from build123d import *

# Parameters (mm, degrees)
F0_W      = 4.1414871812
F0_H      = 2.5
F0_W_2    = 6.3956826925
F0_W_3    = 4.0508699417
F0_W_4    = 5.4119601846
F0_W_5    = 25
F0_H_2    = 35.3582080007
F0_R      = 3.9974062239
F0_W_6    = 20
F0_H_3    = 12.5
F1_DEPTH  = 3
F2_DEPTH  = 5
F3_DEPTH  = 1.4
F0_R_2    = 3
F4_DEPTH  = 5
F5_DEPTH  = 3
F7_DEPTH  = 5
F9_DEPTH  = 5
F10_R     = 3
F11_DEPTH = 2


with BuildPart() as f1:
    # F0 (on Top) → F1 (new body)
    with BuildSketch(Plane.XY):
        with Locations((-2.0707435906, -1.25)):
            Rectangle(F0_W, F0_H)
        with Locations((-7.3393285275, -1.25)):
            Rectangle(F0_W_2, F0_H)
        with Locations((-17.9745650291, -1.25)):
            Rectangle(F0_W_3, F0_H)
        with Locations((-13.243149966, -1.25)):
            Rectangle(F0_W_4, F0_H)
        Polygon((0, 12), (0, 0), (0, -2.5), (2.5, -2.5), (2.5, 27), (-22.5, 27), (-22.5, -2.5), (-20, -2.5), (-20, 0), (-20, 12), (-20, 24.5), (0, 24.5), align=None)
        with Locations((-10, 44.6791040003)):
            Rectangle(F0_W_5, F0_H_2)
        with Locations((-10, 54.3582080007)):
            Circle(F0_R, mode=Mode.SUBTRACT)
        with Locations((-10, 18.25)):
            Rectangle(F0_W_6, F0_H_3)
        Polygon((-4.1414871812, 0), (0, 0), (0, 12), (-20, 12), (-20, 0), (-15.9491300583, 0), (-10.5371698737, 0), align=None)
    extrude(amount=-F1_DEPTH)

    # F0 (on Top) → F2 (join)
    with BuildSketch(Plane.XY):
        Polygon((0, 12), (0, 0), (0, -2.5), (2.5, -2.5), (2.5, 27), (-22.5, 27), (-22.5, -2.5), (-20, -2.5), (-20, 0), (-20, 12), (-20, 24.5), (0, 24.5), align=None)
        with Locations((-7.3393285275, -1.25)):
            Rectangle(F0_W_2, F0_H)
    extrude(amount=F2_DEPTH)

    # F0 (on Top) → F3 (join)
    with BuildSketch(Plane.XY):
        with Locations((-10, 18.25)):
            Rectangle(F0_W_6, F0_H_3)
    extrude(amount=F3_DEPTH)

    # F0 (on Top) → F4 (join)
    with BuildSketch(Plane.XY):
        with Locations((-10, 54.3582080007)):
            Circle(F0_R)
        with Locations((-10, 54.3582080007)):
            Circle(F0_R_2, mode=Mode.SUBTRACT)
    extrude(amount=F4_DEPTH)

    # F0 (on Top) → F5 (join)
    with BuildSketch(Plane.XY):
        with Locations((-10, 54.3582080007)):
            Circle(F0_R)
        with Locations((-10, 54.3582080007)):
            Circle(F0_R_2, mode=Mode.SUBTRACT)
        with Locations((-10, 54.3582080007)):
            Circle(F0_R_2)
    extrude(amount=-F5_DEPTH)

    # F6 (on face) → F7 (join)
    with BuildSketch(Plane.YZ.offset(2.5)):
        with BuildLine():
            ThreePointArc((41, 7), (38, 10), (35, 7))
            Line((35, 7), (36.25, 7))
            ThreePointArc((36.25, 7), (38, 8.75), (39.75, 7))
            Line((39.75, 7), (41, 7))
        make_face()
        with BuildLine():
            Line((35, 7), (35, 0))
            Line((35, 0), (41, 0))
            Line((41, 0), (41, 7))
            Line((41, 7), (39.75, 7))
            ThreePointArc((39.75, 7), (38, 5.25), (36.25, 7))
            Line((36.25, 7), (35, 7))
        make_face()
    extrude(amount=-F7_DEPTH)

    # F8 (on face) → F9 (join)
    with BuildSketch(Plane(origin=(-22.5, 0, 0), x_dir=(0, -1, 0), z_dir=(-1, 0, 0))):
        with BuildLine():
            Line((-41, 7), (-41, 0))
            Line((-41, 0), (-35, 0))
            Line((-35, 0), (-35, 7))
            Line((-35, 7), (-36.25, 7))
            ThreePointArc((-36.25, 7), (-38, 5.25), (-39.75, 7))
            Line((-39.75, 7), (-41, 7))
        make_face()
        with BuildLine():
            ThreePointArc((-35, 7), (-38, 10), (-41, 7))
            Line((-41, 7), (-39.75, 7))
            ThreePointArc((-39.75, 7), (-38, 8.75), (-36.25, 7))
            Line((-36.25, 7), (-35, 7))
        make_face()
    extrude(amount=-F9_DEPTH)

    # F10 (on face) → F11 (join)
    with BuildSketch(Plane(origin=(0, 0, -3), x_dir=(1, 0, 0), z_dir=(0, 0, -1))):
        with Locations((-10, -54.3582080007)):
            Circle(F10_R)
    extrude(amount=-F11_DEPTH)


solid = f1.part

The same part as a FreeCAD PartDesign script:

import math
import FreeCAD as App
import Part
import Sketcher

V = App.Vector
Q = App.Units.Quantity


def add_polygon(sketch, points):
    """Adds a closed chain of lines whose ends are joined by coincident constraints."""
    first, n = sketch.GeometryCount, len(points)
    for a, b in zip(points, points[1:] + points[:1]):
        sketch.addGeometry(Part.LineSegment(App.Vector(*a, 0), App.Vector(*b, 0)), False)
    for i in range(n):
        sketch.addConstraint(Sketcher.Constraint("Coincident", first + i, 2, first + (i + 1) % n, 1))

doc = App.newDocument("Part")
body = doc.addObject("PartDesign::Body", "Body")
body.AllowCompound = True

# Sketch on XY plane
sketch1 = body.newObject("Sketcher::SketchObject", "Sketch")
sketch1.AttachmentSupport = (doc.getObject("XY_Plane"), [""])
sketch1.MapMode = "FlatFace"
add_polygon(sketch1, [(2.5, -2.5), (2.5, 62.358208), (-22.5, 62.358208), (-22.5, -2.5)])  # lines 0-3
sketch1.addGeometry(Part.Circle(V(-10, 54.358208, 0), V(0, 0, 1), 3.997406), False)  # 4
sketch1.addConstraint([
    Sketcher.Constraint("Vertical", 0),
    Sketcher.Constraint("Horizontal", 1),
    Sketcher.Constraint("Vertical", 2),
    Sketcher.Constraint("Horizontal", 3),
    Sketcher.Constraint("DistanceX", 1, 2, 1, 1, Q("25 mm")),
    Sketcher.Constraint("DistanceX", 4, 3, -1, 1, Q("10 mm")),
    Sketcher.Constraint("DistanceY", 4, 3, 0, 2, Q("8 mm")),
    Sketcher.Constraint("DistanceX", -1, 1, 0, 2, Q("2.5 mm")),
    Sketcher.Constraint("DistanceY", 2, 2, -1, 1, Q("2.5 mm")),
    Sketcher.Constraint("Diameter", 4, Q("7.994812 mm")),
    Sketcher.Constraint("DistanceY", 0, 1, 0, 2, Q("64.858208 mm")),
])
pad1 = body.newObject("PartDesign::Pad", "Pad")
pad1.Profile = sketch1
pad1.Length = 3
pad1.Reversed = True

# Sketch on XY plane
sketch2 = body.newObject("Sketcher::SketchObject", "Sketch001")
sketch2.AttachmentSupport = (doc.getObject("XY_Plane"), [""])
sketch2.MapMode = "FlatFace"
add_polygon(sketch2, [(0, -2.5), (2.5, -2.5), (2.5, 27), (-22.5, 27), (-22.5, -2.5), (-20, -2.5), (-20, 24.5), (0, 24.5)])  # lines 0-7
add_polygon(sketch2, [(-10.53717, 0), (-10.53717, -2.5), (-4.141487, -2.5), (-4.141487, 0)])  # lines 8-11
sketch2.addConstraint([
    Sketcher.Constraint("Horizontal", 0),
    Sketcher.Constraint("Vertical", 1),
    Sketcher.Constraint("Horizontal", 2),
    Sketcher.Constraint("Vertical", 3),
    Sketcher.Constraint("Horizontal", 4),
    Sketcher.Constraint("Vertical", 5),
    Sketcher.Constraint("Horizontal", 6),
    Sketcher.Constraint("Vertical", 7),
    Sketcher.Constraint("Vertical", 8),
    Sketcher.Constraint("Horizontal", 9),
    Sketcher.Constraint("Vertical", 10),
    Sketcher.Constraint("Horizontal", 11),
    Sketcher.Constraint("PointOnObject", 6, 2, -2),
    Sketcher.Constraint("PointOnObject", 10, 2, -1),
    Sketcher.Constraint("Horizontal", 0, 2, 3, 2),
    Sketcher.Constraint("Horizontal", 7, 2, 8, 2),
    Sketcher.Constraint("Equal", 0, 4),
    Sketcher.Constraint("Equal", 4, 8),
    Sketcher.Constraint("DistanceX", 2, 2, 2, 1, Q("25 mm")),
    Sketcher.Constraint("DistanceX", 6, 1, 6, 2, Q("20 mm")),
    Sketcher.Constraint("DistanceY", 5, 1, 5, 2, Q("27 mm")),
    Sketcher.Constraint("DistanceY", 1, 1, 1, 2, Q("29.5 mm")),
    Sketcher.Constraint("DistanceX", 9, 1, 9, 2, Q("6.395683 mm")),
    Sketcher.Constraint("DistanceX", 8, 2, -1, 1, Q("10.53717 mm")),
])
pad2 = body.newObject("PartDesign::Pad", "Pad001")
pad2.Profile = sketch2
pad2.Length = 5

# Sketch on XY plane
sketch3 = body.newObject("Sketcher::SketchObject", "Sketch002")
sketch3.AttachmentSupport = (doc.getObject("XY_Plane"), [""])
sketch3.MapMode = "FlatFace"
add_polygon(sketch3, [(-20, 24.5), (-20, 12), (0, 12), (0, 24.5)])  # lines 0-3
sketch3.addConstraint([
    Sketcher.Constraint("Vertical", 0),
    Sketcher.Constraint("Horizontal", 1),
    Sketcher.Constraint("Vertical", 2),
    Sketcher.Constraint("Horizontal", 3),
    Sketcher.Constraint("PointOnObject", 1, 2, -2),
    Sketcher.Constraint("DistanceX", 1, 1, 1, 2, Q("20 mm")),
    Sketcher.Constraint("DistanceY", 0, 2, 0, 1, Q("12.5 mm")),
    Sketcher.Constraint("DistanceY", -1, 1, 0, 2, Q("12 mm")),
])
pad3 = body.newObject("PartDesign::Pad", "Pad002")
pad3.Profile = sketch3
pad3.Length = 1.4

# Sketch on XY plane
sketch4 = body.newObject("Sketcher::SketchObject", "Sketch003")
sketch4.AttachmentSupport = (doc.getObject("XY_Plane"), [""])
sketch4.MapMode = "FlatFace"
sketch4.addGeometry([
    Part.Circle(V(-10, 54.358208, 0), V(0, 0, 1), 3.997406),
    Part.Circle(V(-10, 54.358208, 0), V(0, 0, 1), 3),
], False)
sketch4.addConstraint([
    Sketcher.Constraint("Coincident", 1, 3, 0, 3),
    Sketcher.Constraint("Diameter", 1, Q("6 mm")),
    Sketcher.Constraint("DistanceX", 0, 3, -1, 1, Q("10 mm")),
    Sketcher.Constraint("Diameter", 0, Q("7.994812 mm")),
    Sketcher.Constraint("DistanceY", -1, 1, 0, 3, Q("54.358208 mm")),
])
pad4 = body.newObject("PartDesign::Pad", "Pad003")
pad4.Profile = sketch4
pad4.Length = 5

# Sketch on XY plane
sketch5 = body.newObject("Sketcher::SketchObject", "Sketch004")
sketch5.AttachmentSupport = (doc.getObject("XY_Plane"), [""])
sketch5.MapMode = "FlatFace"
sketch5.addGeometry(Part.Circle(V(-10, 54.358208, 0), V(0, 0, 1), 3.997406), False)
sketch5.addConstraint([
    Sketcher.Constraint("DistanceX", 0, 3, -1, 1, Q("10 mm")),
    Sketcher.Constraint("Diameter", 0, Q("7.994812 mm")),
    Sketcher.Constraint("DistanceY", -1, 1, 0, 3, Q("54.358208 mm")),
])
pad5 = body.newObject("PartDesign::Pad", "Pad004")
pad5.Profile = sketch5
pad5.Length = 3
pad5.Reversed = True

# Sketch on YZ plane
sketch6 = body.newObject("Sketcher::SketchObject", "Sketch005")
sketch6.AttachmentSupport = (doc.getObject("YZ_Plane"), [""])
sketch6.MapMode = "FlatFace"
sketch6.AttachmentOffset = App.Placement(V(0, 0, 2.5), App.Rotation())
sketch6.addGeometry([
    Part.ArcOfCircle(Part.Circle(V(38, 7, 0), V(0, 0, 1), 3), math.radians(0), math.radians(180)),  # 0
    Part.LineSegment(V(35, 7, 0), V(35, 0, 0)),  # 1
    Part.LineSegment(V(35, 0, 0), V(41, 0, 0)),  # 2
    Part.LineSegment(V(41, 0, 0), V(41, 7, 0)),  # 3
    Part.Circle(V(38, 7, 0), V(0, 0, 1), 1.75),  # 4
], False)
sketch6.addConstraint([
    Sketcher.Constraint("Tangent", 0, 2, 1, 1),
    Sketcher.Constraint("Coincident", 1, 2, 2, 1),
    Sketcher.Constraint("Coincident", 2, 2, 3, 1),
    Sketcher.Constraint("Tangent", 3, 2, 0, 1),
    Sketcher.Constraint("Vertical", 1),
    Sketcher.Constraint("Horizontal", 2),
    Sketcher.Constraint("Vertical", 3),
    Sketcher.Constraint("Coincident", 4, 3, 0, 3),
    Sketcher.Constraint("PointOnObject", 1, 2, -1),
    Sketcher.Constraint("Radius", 0, Q("3 mm")),
    Sketcher.Constraint("Diameter", 4, Q("3.5 mm")),
    Sketcher.Constraint("DistanceY", 1, 2, 1, 1, Q("7 mm")),
    Sketcher.Constraint("DistanceX", -1, 1, 0, 3, Q("38 mm")),
])
pad6 = body.newObject("PartDesign::Pad", "Pad005")
pad6.Profile = sketch6
pad6.Length = 5
pad6.Reversed = True

# Sketch on YZ plane
sketch7 = body.newObject("Sketcher::SketchObject", "Sketch006")
sketch7.AttachmentSupport = (doc.getObject("YZ_Plane"), [""])
sketch7.MapMode = "FlatFace"
sketch7.AttachmentOffset = App.Placement(V(0, 0, -22.5), App.Rotation())
sketch7.addGeometry([
    Part.LineSegment(V(41, 7, 0), V(41, 0, 0)),  # 0
    Part.LineSegment(V(41, 0, 0), V(35, 0, 0)),  # 1
    Part.LineSegment(V(35, 0, 0), V(35, 7, 0)),  # 2
    Part.ArcOfCircle(Part.Circle(V(38, 7, 0), V(0, 0, 1), 3), math.radians(0), math.radians(180)),  # 3
    Part.Circle(V(38, 7, 0), V(0, 0, 1), 1.75),  # 4
], False)
sketch7.addConstraint([
    Sketcher.Constraint("Coincident", 0, 2, 1, 1),
    Sketcher.Constraint("Coincident", 1, 2, 2, 1),
    Sketcher.Constraint("Tangent", 2, 2, 3, 2),
    Sketcher.Constraint("Tangent", 3, 1, 0, 1),
    Sketcher.Constraint("Vertical", 0),
    Sketcher.Constraint("Horizontal", 1),
    Sketcher.Constraint("Vertical", 2),
    Sketcher.Constraint("Coincident", 4, 3, 3, 3),
    Sketcher.Constraint("PointOnObject", 0, 2, -1),
    Sketcher.Constraint("Radius", 3, Q("3 mm")),
    Sketcher.Constraint("Diameter", 4, Q("3.5 mm")),
    Sketcher.Constraint("DistanceY", 0, 2, 0, 1, Q("7 mm")),
    Sketcher.Constraint("DistanceX", -1, 1, 3, 3, Q("38 mm")),
])
pad7 = body.newObject("PartDesign::Pad", "Pad006")
pad7.Profile = sketch7
pad7.Length = 5

# Sketch on XY plane
sketch8 = body.newObject("Sketcher::SketchObject", "Sketch007")
sketch8.AttachmentSupport = (doc.getObject("XY_Plane"), [""])
sketch8.MapMode = "FlatFace"
sketch8.AttachmentOffset = App.Placement(V(0, 0, -3), App.Rotation())
sketch8.addGeometry(Part.Circle(V(-10, 54.358208, 0), V(0, 0, 1), 3), False)
sketch8.addConstraint([
    Sketcher.Constraint("Diameter", 0, Q("6 mm")),
    Sketcher.Constraint("DistanceX", 0, 3, -1, 1, Q("10 mm")),
    Sketcher.Constraint("DistanceY", -1, 1, 0, 3, Q("54.358208 mm")),
])
pad8 = body.newObject("PartDesign::Pad", "Pad007")
pad8.Profile = sketch8
pad8.Length = 2

doc.recompute()
